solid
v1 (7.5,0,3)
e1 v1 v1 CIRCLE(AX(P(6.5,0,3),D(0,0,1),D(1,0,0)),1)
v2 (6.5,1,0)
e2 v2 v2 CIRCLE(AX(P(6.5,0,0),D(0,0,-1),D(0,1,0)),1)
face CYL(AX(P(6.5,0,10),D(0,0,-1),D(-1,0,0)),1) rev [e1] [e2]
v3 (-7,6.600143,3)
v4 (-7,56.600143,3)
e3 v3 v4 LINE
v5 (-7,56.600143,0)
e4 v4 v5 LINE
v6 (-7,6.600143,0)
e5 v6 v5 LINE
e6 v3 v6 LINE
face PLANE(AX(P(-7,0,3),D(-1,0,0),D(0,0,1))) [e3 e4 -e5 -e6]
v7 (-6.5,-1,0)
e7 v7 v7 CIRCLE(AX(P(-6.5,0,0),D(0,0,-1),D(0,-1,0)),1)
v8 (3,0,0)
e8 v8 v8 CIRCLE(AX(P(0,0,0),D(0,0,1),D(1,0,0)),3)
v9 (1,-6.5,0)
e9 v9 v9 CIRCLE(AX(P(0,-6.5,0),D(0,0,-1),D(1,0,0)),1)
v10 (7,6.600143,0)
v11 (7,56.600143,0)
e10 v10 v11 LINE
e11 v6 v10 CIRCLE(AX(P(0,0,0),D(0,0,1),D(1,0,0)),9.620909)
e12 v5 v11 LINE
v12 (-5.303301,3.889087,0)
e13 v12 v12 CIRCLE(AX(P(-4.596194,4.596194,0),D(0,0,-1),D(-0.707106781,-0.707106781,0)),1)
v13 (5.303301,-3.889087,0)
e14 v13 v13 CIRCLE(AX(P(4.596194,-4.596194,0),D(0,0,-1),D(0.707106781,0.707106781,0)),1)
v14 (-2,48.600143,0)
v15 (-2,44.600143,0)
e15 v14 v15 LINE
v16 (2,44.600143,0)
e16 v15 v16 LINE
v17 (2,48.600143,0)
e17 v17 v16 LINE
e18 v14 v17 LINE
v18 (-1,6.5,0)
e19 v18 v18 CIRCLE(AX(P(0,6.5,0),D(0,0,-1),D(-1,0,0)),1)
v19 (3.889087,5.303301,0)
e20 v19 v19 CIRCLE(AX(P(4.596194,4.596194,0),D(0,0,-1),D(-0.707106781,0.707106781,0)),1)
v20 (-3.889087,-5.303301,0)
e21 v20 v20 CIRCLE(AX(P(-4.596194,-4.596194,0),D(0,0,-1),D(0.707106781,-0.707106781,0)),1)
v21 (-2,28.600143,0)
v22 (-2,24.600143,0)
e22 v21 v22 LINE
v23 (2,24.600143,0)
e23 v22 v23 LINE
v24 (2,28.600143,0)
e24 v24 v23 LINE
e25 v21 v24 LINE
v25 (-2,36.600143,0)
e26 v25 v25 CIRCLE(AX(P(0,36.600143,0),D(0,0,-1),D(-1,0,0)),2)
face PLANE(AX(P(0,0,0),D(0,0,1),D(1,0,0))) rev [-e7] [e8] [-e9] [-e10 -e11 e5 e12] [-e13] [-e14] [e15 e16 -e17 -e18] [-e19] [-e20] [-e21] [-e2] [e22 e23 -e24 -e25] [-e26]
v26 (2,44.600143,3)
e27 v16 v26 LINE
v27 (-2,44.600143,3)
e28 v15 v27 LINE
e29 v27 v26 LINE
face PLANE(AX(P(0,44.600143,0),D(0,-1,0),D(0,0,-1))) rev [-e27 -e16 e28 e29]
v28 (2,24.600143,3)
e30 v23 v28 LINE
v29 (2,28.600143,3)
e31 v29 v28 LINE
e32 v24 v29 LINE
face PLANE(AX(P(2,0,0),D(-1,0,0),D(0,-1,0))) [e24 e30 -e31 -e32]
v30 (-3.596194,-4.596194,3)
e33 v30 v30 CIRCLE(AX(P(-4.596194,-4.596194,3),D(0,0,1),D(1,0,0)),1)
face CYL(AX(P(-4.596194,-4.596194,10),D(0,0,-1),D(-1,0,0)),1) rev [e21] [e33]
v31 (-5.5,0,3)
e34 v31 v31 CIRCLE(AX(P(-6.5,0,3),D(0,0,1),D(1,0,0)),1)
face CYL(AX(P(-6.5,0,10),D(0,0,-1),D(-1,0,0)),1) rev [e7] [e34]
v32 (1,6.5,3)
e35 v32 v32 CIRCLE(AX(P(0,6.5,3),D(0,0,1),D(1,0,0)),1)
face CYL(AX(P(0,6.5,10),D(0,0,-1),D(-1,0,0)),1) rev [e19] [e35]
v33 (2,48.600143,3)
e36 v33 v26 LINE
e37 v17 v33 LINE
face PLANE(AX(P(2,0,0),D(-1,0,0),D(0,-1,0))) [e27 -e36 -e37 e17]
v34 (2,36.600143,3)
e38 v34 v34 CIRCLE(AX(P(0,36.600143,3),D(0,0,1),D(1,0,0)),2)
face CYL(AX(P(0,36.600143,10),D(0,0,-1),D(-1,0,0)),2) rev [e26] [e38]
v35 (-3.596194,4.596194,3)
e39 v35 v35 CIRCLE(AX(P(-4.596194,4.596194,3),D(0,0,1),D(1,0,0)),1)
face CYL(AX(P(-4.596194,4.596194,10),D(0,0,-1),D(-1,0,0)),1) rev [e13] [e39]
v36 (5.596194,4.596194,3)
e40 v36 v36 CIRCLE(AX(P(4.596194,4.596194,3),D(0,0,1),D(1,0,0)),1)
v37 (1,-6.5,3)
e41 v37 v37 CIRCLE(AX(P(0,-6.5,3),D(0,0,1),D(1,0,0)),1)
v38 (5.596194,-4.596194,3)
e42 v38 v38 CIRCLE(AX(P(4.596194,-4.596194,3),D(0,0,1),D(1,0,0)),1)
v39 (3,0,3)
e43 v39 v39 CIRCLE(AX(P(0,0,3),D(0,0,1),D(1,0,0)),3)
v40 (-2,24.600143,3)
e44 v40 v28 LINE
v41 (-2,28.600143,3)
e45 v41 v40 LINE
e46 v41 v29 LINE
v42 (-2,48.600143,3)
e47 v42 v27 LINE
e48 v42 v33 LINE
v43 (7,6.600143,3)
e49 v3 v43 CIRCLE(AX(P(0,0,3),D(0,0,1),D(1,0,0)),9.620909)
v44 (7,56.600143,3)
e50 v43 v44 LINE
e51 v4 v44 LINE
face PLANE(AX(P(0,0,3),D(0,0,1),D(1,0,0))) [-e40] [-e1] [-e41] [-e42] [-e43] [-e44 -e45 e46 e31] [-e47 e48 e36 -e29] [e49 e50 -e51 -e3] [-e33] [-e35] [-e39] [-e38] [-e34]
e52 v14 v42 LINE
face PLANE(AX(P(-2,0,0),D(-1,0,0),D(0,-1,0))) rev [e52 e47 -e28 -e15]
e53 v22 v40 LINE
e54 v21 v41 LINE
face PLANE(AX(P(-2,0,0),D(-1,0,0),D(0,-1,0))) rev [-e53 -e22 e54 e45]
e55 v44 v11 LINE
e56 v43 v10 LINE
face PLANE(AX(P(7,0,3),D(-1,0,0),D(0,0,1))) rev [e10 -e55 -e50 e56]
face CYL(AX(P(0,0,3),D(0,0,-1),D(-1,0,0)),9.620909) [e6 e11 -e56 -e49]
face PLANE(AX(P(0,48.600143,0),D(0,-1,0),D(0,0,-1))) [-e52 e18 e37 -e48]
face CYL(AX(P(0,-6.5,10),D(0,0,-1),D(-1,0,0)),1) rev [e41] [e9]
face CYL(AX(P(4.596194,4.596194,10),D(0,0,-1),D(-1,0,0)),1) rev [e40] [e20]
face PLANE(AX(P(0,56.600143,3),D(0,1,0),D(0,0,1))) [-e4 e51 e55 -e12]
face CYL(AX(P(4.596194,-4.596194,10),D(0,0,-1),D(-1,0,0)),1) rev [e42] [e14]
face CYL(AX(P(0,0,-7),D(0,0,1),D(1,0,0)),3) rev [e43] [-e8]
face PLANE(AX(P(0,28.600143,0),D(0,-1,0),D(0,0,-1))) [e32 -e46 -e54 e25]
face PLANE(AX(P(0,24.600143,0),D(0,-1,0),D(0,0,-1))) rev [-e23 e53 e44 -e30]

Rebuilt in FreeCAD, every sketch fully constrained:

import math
import FreeCAD as App
import Part
import Sketcher
from FreeCAD import Vector
Q = App.Units.Quantity

doc = App.newDocument("Part")
body = doc.addObject("PartDesign::Body", "Body")

sketch1 = body.newObject("Sketcher::SketchObject", "Sketch")
sketch1.AttachmentSupport = (doc.getObject("XY_Plane"), [""])
sketch1.MapMode = "FlatFace"
sketch1.addGeometry([
    Part.ArcOfCircle(Part.Circle(Vector(0, 0, 0), Vector(0, 0, 1), 10), math.radians(137), math.radians(223)),
    Part.ArcOfCircle(Part.Circle(Vector(0, 0, 0), Vector(0, 0, 1), 10), math.radians(-137), math.radians(-43)),
    Part.ArcOfCircle(Part.Circle(Vector(0, 0, 0), Vector(0, 0, 1), 10), math.radians(-43), math.radians(0)),
    Part.ArcOfCircle(Part.Circle(Vector(0, 0, 0), Vector(0, 0, 1), 10), math.radians(0), math.radians(43)),
    Part.LineSegment(Vector(7, 7, 0), Vector(7, 57, 0)),
    Part.LineSegment(Vector(7, 57, 0), Vector(-7, 57, 0)),
    Part.LineSegment(Vector(-7, 57, 0), Vector(-7, 7, 0)),
], False)
sketch1.addConstraint([
    Sketcher.Constraint("Tangent", 0, 2, 1, 1),
    Sketcher.Constraint("Tangent", 1, 2, 2, 1),
    Sketcher.Constraint("Tangent", 2, 2, 3, 1),
    Sketcher.Constraint("Coincident", 3, 2, 4, 1),
    Sketcher.Constraint("Coincident", 4, 2, 5, 1),
    Sketcher.Constraint("Coincident", 5, 2, 6, 1),
    Sketcher.Constraint("Coincident", 6, 2, 0, 1),
    Sketcher.Constraint("Vertical", 4),
    Sketcher.Constraint("Horizontal", 5),
    Sketcher.Constraint("Vertical", 6),
    Sketcher.Constraint("Coincident", 0, 3, -1, 1),
    Sketcher.Constraint("Coincident", 2, 3, -1, 1),
    Sketcher.Constraint("Equal", 2, 3),
    Sketcher.Constraint("PointOnObject", 2, 2, -1),
    Sketcher.Constraint("Horizontal", 0, 2, 1, 2),
    Sketcher.Constraint("Horizontal", 3, 2, 6, 2),
    Sketcher.Constraint("Vertical", 1, 2, 3, 2),
    Sketcher.Constraint("DistanceX", 5, 2, 5, 1, Q("14 mm")),
    Sketcher.Constraint("DistanceY", 4, 1, 4, 2, Q("50 mm")),
    Sketcher.Constraint("Radius", 0, Q("9.620909 mm")),
])
pad1 = body.newObject("PartDesign::Pad", "Pad")
pad1.Profile = sketch1
pad1.Length = 3

sketch2 = body.newObject("Sketcher::SketchObject", "Sketch001")
sketch2.AttachmentSupport = (doc.getObject("XY_Plane"), [""])
sketch2.MapMode = "FlatFace"
sketch2.AttachmentOffset = App.Placement(Vector(0, 0, 3), App.Rotation())
sketch2.addGeometry([
    Part.LineSegment(Vector(-17.5, 64.5, 0), Vector(-17.5, -17.5, 0)),
    Part.LineSegment(Vector(-17.5, -17.5, 0), Vector(17.5, -17.5, 0)),
    Part.LineSegment(Vector(17.5, -17.5, 0), Vector(17.5, 64.5, 0)),
    Part.LineSegment(Vector(17.5, 64.5, 0), Vector(-17.5, 64.5, 0)),
    Part.LineSegment(Vector(-7, 56.6, 0), Vector(7, 56.6, 0)),
    Part.LineSegment(Vector(7, 56.6, 0), Vector(7, 6.6, 0)),
    Part.ArcOfCircle(Part.Circle(Vector(0, 0, 0), Vector(0, 0, 1), 9.6), math.radians(137), math.radians(403)),
    Part.LineSegment(Vector(-7, 6.6, 0), Vector(-7, 56.6, 0)),
    Part.LineSegment(Vector(2, 28.6, 0), Vector(-2, 28.6, 0)),
    Part.LineSegment(Vector(-2, 28.6, 0), Vector(-2, 24.6, 0)),
    Part.LineSegment(Vector(-2, 24.6, 0), Vector(2, 24.6, 0)),
    Part.LineSegment(Vector(2, 24.6, 0), Vector(2, 28.6, 0)),
    Part.LineSegment(Vector(2, 38.6, 0), Vector(-2, 38.6, 0)),
    Part.LineSegment(Vector(-2, 38.6, 0), Vector(-2, 34.6, 0)),
    Part.LineSegment(Vector(-2, 34.6, 0), Vector(2, 34.6, 0)),
    Part.LineSegment(Vector(2, 34.6, 0), Vector(2, 38.6, 0)),
    Part.LineSegment(Vector(2, 48.6, 0), Vector(-2, 48.6, 0)),
    Part.LineSegment(Vector(-2, 48.6, 0), Vector(-2, 44.6, 0)),
    Part.LineSegment(Vector(-2, 44.6, 0), Vector(2, 44.6, 0)),
    Part.LineSegment(Vector(2, 44.6, 0), Vector(2, 48.6, 0)),
], False)
sketch2.addConstraint([
    Sketcher.Constraint("Coincident", 0, 2, 1, 1),
    Sketcher.Constraint("Coincident", 1, 2, 2, 1),
    Sketcher.Constraint("Coincident", 2, 2, 3, 1),
    Sketcher.Constraint("Coincident", 3, 2, 0, 1),
    Sketcher.Constraint("Coincident", 4, 2, 5, 1),
    Sketcher.Constraint("Coincident", 5, 2, 6, 2),
    Sketcher.Constraint("Coincident", 6, 1, 7, 1),
    Sketcher.Constraint("Coincident", 7, 2, 4, 1),
    Sketcher.Constraint("Coincident", 8, 2, 9, 1),
    Sketcher.Constraint("Coincident", 9, 2, 10, 1),
    Sketcher.Constraint("Coincident", 10, 2, 11, 1),
    Sketcher.Constraint("Coincident", 11, 2, 8, 1),
    Sketcher.Constraint("Coincident", 12, 2, 13, 1),
    Sketcher.Constraint("Coincident", 13, 2, 14, 1),
    Sketcher.Constraint("Coincident", 14, 2, 15, 1),
    Sketcher.Constraint("Coincident", 15, 2, 12, 1),
    Sketcher.Constraint("Coincident", 16, 2, 17, 1),
    Sketcher.Constraint("Coincident", 17, 2, 18, 1),
    Sketcher.Constraint("Coincident", 18, 2, 19, 1),
    Sketcher.Constraint("Coincident", 19, 2, 16, 1),
    Sketcher.Constraint("Vertical", 0),
    Sketcher.Constraint("Horizontal", 1),
    Sketcher.Constraint("Vertical", 2),
    Sketcher.Constraint("Horizontal", 3),
    Sketcher.Constraint("Horizontal", 4),
    Sketcher.Constraint("Vertical", 5),
    Sketcher.Constraint("Vertical", 7),
    Sketcher.Constraint("Horizontal", 8),
    Sketcher.Constraint("Vertical", 9),
    Sketcher.Constraint("Horizontal", 10),
    Sketcher.Constraint("Vertical", 11),
    Sketcher.Constraint("Horizontal", 12),
    Sketcher.Constraint("Vertical", 13),
    Sketcher.Constraint("Horizontal", 14),
    Sketcher.Constraint("Vertical", 15),
    Sketcher.Constraint("Horizontal", 16),
    Sketcher.Constraint("Vertical", 17),
    Sketcher.Constraint("Horizontal", 18),
    Sketcher.Constraint("Vertical", 19),
    Sketcher.Constraint("Coincident", 6, 3, -1, 1),
    Sketcher.Constraint("Horizontal", 5, 2, 6, 1),
    Sketcher.Constraint("Vertical", 9, 2, 12, 2),
    Sketcher.Constraint("Vertical", 11, 2, 14, 2),
    Sketcher.Constraint("Vertical", 13, 2, 16, 2),
    Sketcher.Constraint("Vertical", 15, 2, 18, 2),
    Sketcher.Constraint("Equal", 18, 9),
    Sketcher.Constraint("Equal", 11, 13),
    Sketcher.Constraint("Equal", 15, 17),
    Sketcher.Constraint("DistanceX", 4, 1, 4, 2, Q("14 mm")),
    Sketcher.Constraint("DistanceX", 8, 2, 8, 1, Q("4 mm")),
    Sketcher.Constraint("DistanceY", 5, 2, 5, 1, Q("50 mm")),
    Sketcher.Constraint("DistanceX", 8, 2, -1, 1, Q("2 mm")),
    Sketcher.Constraint("DistanceY", 6, 1, 8, 2, Q("22 mm")),
    Sketcher.Constraint("DistanceY", 8, 2, 12, 2, Q("10 mm")),
    Sketcher.Constraint("DistanceY", 16, 2, 7, 2, Q("8 mm")),
    Sketcher.Constraint("DistanceX", 1, 1, 1, 2, Q("35.048 mm")),
    Sketcher.Constraint("DistanceY", 0, 2, 0, 1, Q("82.027 mm")),
    Sketcher.Constraint("Radius", 6, Q("9.620909 mm")),
    Sketcher.Constraint("DistanceX", 0, 2, -1, 1, Q("17.524 mm")),
    Sketcher.Constraint("DistanceY", 0, 2, -1, 1, Q("17.524 mm")),
])
pocket1 = body.newObject("PartDesign::Pocket", "Pocket")
pocket1.Profile = sketch2
pocket1.Length = 3

sketch3 = body.newObject("Sketcher::SketchObject", "Sketch002")
sketch3.AttachmentSupport = (doc.getObject("XY_Plane"), [""])
sketch3.MapMode = "FlatFace"
sketch3.AttachmentOffset = App.Placement(Vector(0, 0, 3), App.Rotation())
sketch3.addGeometry(Part.Circle(Vector(0, 0, 0), Vector(0, 0, 1), 3), False)
sketch3.addConstraint([
    Sketcher.Constraint("Coincident", 0, 3, -1, 1),
    Sketcher.Constraint("Diameter", 0, Q("6 mm")),
])
pocket2 = body.newObject("PartDesign::Pocket", "Pocket001")
pocket2.Profile = sketch3
pocket2.Length = 10

sketch4 = body.newObject("Sketcher::SketchObject", "Sketch003")
sketch4.AttachmentSupport = (doc.getObject("XY_Plane"), [""])
sketch4.MapMode = "FlatFace"
sketch4.addGeometry(Part.Circle(Vector(0, 6.5, 0), Vector(0, 0, 1), 1), False)
sketch4.addConstraint([
    Sketcher.Constraint("PointOnObject", 0, 3, -2),
    Sketcher.Constraint("Diameter", 0, Q("2 mm")),
    Sketcher.Constraint("DistanceY", -1, 1, 0, 3, Q("6.5 mm")),
])
pocket3 = body.newObject("PartDesign::Pocket", "Pocket002")
pocket3.Profile = sketch4
pocket3.Length = 10
pocket3.Reversed = True

sketch5 = body.newObject("Sketcher::SketchObject", "Sketch004")
sketch5.AttachmentSupport = (doc.getObject("XY_Plane"), [""])
sketch5.MapMode = "FlatFace"
sketch5.addGeometry([
    Part.LineSegment(Vector(2, 38.6, 0), Vector(2, 34.6, 0)),
    Part.LineSegment(Vector(2, 34.6, 0), Vector(-2, 34.6, 0)),
    Part.LineSegment(Vector(-2, 34.6, 0), Vector(-2, 38.6, 0)),
    Part.LineSegment(Vector(-2, 38.6, 0), Vector(2, 38.6, 0)),
], False)
sketch5.addConstraint([
    Sketcher.Constraint("Coincident", 0, 2, 1, 1),
    Sketcher.Constraint("Coincident", 1, 2, 2, 1),
    Sketcher.Constraint("Coincident", 2, 2, 3, 1),
    Sketcher.Constraint("Coincident", 3, 2, 0, 1),
    Sketcher.Constraint("Vertical", 0),
    Sketcher.Constraint("Horizontal", 1),
    Sketcher.Constraint("Vertical", 2),
    Sketcher.Constraint("Horizontal", 3),
    Sketcher.Constraint("Equal", 3, 0),
    Sketcher.Constraint("DistanceX", 1, 2, 1, 1, Q("4 mm")),
    Sketcher.Constraint("DistanceX", -1, 1, 0, 2, Q("2 mm")),
    Sketcher.Constraint("DistanceY", -1, 1, 0, 2, Q("34.600143 mm")),
])
pad2 = body.newObject("PartDesign::Pad", "Pad001")
pad2.Profile = sketch5
pad2.Length = 3

sketch6 = body.newObject("Sketcher::SketchObject", "Sketch005")
sketch6.AttachmentSupport = (doc.getObject("XY_Plane"), [""])
sketch6.MapMode = "FlatFace"
sketch6.addGeometry([
    Part.ArcOfCircle(Part.Circle(Vector(0, 36.6, 0), Vector(0, 0, 1), 2), math.radians(-90), math.radians(90)),
    Part.ArcOfCircle(Part.Circle(Vector(0, 36.6, 0), Vector(0, 0, 1), 2), math.radians(-180), math.radians(-90)),
    Part.ArcOfCircle(Part.Circle(Vector(0, 36.6, 0), Vector(0, 0, 1), 2), math.radians(90), math.radians(180)),
], False)
sketch6.addConstraint([
    Sketcher.Constraint("Tangent", 0, 1, 1, 2),
    Sketcher.Constraint("Tangent", 1, 1, 2, 2),
    Sketcher.Constraint("Tangent", 2, 1, 0, 2),
    Sketcher.Constraint("PointOnObject", 0, 3, -2),
    Sketcher.Constraint("PointOnObject", 0, 1, -2),
    Sketcher.Constraint("PointOnObject", 2, 1, -2),
    Sketcher.Constraint("Horizontal", 2, 3, 1, 1),
    Sketcher.Constraint("Radius", 0, Q("2 mm")),
    Sketcher.Constraint("DistanceY", -1, 1, 0, 3, Q("36.600143 mm")),
])
pocket4 = body.newObject("PartDesign::Pocket", "Pocket003")
pocket4.Profile = sketch6
pocket4.Length = 10
pocket4.Reversed = True
doc.recompute()

polarpattern = body.newObject("PartDesign::PolarPattern", "PolarPattern")
polarpattern.Originals = [pocket3]
polarpattern.Axis = (doc.getObject("Z_Axis"), [""])
polarpattern.Angle = 360
polarpattern.Occurrences = 8
body.Tip = polarpattern

doc.recompute()
